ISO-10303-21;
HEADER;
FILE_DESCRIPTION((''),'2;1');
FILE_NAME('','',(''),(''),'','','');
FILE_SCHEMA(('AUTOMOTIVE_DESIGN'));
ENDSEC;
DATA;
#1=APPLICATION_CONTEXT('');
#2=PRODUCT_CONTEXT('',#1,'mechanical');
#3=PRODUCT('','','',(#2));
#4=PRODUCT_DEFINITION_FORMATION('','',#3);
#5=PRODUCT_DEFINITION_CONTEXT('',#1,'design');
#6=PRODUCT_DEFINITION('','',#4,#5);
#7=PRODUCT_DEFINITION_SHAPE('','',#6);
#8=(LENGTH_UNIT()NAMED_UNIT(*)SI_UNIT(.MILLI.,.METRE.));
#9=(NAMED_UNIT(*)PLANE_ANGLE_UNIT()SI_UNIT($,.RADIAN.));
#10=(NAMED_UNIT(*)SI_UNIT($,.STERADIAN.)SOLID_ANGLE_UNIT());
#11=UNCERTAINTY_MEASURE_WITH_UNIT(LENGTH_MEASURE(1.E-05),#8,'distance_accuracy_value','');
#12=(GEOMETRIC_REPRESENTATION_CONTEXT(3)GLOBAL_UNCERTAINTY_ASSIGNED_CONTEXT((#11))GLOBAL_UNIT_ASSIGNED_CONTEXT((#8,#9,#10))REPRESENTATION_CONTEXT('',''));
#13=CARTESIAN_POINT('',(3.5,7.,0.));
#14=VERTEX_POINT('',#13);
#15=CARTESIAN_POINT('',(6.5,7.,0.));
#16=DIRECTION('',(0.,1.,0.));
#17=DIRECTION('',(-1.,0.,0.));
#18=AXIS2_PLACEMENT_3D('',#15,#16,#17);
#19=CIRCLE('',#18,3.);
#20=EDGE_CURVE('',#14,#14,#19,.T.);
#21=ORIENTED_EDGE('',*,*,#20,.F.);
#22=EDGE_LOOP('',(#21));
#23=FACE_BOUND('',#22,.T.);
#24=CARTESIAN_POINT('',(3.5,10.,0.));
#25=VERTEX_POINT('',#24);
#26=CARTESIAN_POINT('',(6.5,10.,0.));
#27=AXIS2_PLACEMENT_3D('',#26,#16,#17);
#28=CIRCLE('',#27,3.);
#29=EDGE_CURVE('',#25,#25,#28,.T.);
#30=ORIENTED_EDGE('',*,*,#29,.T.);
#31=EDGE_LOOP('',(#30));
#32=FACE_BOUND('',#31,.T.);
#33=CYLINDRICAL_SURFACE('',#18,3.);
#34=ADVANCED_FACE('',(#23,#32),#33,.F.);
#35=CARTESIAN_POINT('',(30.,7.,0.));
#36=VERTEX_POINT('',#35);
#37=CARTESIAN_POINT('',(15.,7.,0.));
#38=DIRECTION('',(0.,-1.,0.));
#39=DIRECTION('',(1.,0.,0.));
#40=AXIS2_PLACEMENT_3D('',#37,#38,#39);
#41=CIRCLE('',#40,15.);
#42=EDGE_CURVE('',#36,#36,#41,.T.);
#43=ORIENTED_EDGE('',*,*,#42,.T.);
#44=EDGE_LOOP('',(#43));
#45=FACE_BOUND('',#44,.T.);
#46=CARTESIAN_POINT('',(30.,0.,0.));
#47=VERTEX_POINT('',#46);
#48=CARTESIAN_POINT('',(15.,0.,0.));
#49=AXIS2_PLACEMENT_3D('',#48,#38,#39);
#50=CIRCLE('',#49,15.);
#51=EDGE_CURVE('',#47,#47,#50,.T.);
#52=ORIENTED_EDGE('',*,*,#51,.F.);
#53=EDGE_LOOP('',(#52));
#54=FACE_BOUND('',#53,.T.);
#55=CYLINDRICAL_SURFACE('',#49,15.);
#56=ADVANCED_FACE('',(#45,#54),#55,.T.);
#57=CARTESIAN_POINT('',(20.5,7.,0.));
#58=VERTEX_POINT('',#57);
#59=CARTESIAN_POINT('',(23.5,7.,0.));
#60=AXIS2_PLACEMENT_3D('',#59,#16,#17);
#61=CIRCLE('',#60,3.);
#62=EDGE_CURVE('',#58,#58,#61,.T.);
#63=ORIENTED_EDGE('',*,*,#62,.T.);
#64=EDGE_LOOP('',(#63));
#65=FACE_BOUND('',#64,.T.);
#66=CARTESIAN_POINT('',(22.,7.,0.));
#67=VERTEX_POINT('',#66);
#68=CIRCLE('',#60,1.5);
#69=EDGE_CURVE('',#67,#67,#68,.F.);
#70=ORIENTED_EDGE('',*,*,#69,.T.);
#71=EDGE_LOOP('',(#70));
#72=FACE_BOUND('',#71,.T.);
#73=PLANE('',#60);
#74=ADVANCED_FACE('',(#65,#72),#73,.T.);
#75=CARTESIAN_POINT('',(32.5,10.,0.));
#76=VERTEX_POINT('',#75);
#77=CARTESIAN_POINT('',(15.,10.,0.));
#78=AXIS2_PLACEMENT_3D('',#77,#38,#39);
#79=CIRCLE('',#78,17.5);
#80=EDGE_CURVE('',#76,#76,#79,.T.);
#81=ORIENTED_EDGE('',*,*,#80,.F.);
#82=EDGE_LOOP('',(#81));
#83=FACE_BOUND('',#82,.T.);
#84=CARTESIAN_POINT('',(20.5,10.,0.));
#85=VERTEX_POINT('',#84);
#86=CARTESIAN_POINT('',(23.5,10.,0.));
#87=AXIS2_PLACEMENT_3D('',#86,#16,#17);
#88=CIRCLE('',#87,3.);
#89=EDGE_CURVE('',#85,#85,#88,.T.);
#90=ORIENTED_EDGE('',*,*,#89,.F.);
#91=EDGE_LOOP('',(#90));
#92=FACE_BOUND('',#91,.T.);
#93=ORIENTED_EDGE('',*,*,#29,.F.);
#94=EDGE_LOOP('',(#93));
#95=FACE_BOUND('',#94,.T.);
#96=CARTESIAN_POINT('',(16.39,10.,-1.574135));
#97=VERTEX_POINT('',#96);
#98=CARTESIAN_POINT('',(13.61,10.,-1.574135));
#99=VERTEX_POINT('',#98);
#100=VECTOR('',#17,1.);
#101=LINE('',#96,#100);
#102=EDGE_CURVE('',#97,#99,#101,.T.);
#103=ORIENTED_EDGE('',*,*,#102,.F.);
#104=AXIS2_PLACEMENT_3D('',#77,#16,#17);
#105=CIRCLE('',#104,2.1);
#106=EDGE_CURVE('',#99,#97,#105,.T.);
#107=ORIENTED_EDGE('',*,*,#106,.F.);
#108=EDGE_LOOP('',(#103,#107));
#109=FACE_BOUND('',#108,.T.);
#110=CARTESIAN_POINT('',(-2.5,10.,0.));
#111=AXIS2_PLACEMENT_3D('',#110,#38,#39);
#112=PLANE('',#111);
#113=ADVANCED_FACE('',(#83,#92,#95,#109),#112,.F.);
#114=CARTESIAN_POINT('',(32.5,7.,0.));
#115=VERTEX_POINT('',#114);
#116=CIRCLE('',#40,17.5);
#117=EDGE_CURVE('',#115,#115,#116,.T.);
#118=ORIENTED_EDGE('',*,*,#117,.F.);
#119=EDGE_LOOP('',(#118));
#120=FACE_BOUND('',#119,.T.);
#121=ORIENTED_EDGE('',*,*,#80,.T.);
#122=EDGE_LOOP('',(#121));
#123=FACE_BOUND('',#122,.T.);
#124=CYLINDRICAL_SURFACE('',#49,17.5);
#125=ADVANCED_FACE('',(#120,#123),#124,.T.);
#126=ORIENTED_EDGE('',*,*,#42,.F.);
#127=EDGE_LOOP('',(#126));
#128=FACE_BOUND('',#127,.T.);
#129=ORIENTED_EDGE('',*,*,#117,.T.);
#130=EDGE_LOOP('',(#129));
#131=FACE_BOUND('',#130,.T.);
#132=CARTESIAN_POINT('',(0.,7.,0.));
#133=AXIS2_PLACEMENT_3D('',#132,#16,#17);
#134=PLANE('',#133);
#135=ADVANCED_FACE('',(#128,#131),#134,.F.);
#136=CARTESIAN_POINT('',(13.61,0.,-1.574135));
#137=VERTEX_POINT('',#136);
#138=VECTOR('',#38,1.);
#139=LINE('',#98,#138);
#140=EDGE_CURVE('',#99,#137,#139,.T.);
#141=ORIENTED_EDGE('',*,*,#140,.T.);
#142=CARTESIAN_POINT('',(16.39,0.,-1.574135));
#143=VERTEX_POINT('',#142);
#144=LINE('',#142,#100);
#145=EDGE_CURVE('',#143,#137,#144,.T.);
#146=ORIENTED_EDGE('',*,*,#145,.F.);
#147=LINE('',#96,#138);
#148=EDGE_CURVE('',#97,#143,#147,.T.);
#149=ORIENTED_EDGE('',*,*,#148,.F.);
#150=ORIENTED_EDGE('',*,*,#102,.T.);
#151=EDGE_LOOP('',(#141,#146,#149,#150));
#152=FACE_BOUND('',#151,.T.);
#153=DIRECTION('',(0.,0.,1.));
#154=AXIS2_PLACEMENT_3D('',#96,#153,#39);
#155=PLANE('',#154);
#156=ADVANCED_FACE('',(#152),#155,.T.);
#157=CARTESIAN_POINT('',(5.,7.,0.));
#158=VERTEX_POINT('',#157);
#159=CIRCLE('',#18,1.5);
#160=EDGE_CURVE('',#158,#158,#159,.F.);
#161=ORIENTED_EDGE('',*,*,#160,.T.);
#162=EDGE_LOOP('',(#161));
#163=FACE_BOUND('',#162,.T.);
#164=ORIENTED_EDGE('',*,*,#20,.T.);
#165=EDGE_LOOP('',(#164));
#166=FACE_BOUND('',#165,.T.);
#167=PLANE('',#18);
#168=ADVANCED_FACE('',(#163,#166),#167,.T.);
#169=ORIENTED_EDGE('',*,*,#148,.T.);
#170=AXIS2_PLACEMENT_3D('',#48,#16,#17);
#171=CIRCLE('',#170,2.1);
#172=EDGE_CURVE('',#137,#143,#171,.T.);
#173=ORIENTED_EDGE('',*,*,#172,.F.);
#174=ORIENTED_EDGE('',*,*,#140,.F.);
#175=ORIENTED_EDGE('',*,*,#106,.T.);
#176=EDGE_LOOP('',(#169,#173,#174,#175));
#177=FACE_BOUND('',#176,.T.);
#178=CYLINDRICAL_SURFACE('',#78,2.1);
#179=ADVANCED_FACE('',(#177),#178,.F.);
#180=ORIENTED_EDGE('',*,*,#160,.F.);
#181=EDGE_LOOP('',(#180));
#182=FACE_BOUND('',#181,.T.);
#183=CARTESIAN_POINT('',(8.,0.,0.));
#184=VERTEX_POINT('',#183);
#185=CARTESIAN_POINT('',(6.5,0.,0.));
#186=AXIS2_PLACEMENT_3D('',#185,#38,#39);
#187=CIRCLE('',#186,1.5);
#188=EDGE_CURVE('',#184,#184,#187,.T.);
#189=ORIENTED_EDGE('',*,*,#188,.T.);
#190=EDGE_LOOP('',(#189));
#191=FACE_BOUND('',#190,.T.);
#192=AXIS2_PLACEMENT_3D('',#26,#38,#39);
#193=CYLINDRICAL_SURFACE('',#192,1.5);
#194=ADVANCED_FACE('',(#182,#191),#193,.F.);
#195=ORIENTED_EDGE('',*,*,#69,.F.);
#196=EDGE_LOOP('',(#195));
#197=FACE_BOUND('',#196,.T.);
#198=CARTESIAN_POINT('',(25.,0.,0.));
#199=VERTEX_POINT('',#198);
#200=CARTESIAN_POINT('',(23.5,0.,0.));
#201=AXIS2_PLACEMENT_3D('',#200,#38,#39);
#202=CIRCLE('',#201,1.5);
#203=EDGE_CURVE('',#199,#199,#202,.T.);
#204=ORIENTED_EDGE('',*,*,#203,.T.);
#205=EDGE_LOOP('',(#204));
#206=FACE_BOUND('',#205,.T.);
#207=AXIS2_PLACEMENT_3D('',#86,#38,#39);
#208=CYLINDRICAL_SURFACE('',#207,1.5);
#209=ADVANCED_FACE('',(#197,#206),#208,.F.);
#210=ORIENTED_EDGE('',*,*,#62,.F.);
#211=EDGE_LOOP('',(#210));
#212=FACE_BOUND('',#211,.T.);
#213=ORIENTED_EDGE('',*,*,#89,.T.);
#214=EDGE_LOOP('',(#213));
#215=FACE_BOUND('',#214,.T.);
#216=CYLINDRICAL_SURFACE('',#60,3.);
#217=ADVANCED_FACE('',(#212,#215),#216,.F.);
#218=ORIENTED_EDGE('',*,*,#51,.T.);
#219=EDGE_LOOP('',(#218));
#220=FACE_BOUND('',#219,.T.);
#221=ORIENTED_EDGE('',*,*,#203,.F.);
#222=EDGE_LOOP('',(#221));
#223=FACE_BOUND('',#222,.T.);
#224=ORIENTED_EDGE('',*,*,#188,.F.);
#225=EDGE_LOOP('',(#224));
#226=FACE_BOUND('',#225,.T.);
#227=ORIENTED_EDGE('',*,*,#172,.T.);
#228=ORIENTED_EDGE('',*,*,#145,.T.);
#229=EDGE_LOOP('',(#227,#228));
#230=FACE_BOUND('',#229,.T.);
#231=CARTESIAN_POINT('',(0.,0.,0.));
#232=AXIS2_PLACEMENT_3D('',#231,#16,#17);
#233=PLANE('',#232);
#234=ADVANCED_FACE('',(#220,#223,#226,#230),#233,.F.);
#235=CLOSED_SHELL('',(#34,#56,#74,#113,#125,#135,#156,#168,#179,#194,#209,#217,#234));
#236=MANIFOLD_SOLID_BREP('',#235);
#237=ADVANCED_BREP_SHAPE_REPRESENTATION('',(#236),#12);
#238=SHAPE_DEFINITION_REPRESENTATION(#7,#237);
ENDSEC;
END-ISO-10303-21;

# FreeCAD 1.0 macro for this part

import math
import FreeCAD as App
import Part
import Sketcher

V = App.Vector


def add_polygon(sketch, points):
    """Adds a closed chain of lines whose ends are joined by coincident constraints."""
    first, n = sketch.GeometryCount, len(points)
    for a, b in zip(points, points[1:] + points[:1]):
        sketch.addGeometry(Part.LineSegment(App.Vector(*a, 0), App.Vector(*b, 0)), False)
    for i in range(n):
        sketch.addConstraint(Sketcher.Constraint("Coincident", first + i, 2, first + (i + 1) % n, 1))

doc = App.newDocument("Part")
body = doc.addObject("PartDesign::Body", "Body")

sketch1 = body.newObject("Sketcher::SketchObject", "Sketch")
sketch1.AttachmentSupport = (doc.getObject("XY_Plane"), [""])
sketch1.MapMode = "FlatFace"
add_polygon(sketch1, [(-2.5, 7), (0, 7), (0, 0), (15, 0), (15, 10), (-2.5, 10)])
sketch1.addGeometry(Part.LineSegment(V(15, 0, 0), V(15, 10, 0)), True)
sketch1.addConstraint([
    Sketcher.Constraint("Horizontal", 0),
    Sketcher.Constraint("Vertical", 1),
    Sketcher.Constraint("Horizontal", 2),
    Sketcher.Constraint("Vertical", 3),
    Sketcher.Constraint("Horizontal", 4),
    Sketcher.Constraint("Vertical", 5),
    Sketcher.Constraint("Vertical", 6),
    Sketcher.Constraint("Coincident", 1, 2, -1, 1),
    Sketcher.Constraint("Coincident", 6, 1, 2, 2),
    Sketcher.Constraint("Horizontal", 4, 2, 6, 2),
    Sketcher.Constraint("DistanceX", 2, 1, 2, 2, 15.0),
    Sketcher.Constraint("DistanceY", 1, 2, 1, 1, 7.0),
    Sketcher.Constraint("DistanceY", 3, 1, 3, 2, 10.0),
    Sketcher.Constraint("DistanceX", 0, 1, 0, 2, 2.5),
])
revolution = body.newObject("PartDesign::Revolution", "Revolution")
revolution.Profile = sketch1
revolution.ReferenceAxis = (sketch1, ["Axis0"])
revolution.Angle = 360

sketch2 = body.newObject("Sketcher::SketchObject", "Sketch001")
sketch2.AttachmentSupport = (doc.getObject("XZ_Plane"), [""])
sketch2.MapMode = "FlatFace"
sketch2.addGeometry([
    Part.Circle(V(23.5, 0, 0), V(0, 0, 1), 1.5),
    Part.Circle(V(6.5, 0, 0), V(0, 0, 1), 1.5),
    Part.LineSegment(V(13.6, -1.6, 0), V(16.4, -1.6, 0)),
    Part.ArcOfCircle(Part.Circle(V(15, 0, 0), V(0, 0, 1), 2.1), math.radians(-49), math.radians(229)),
], False)
sketch2.addConstraint([
    Sketcher.Constraint("Coincident", 2, 1, 3, 2),
    Sketcher.Constraint("Coincident", 3, 1, 2, 2),
    Sketcher.Constraint("Horizontal", 2),
    Sketcher.Constraint("Equal", 0, 1),
    Sketcher.Constraint("PointOnObject", 0, 3, -1),
    Sketcher.Constraint("PointOnObject", 1, 3, -1),
    Sketcher.Constraint("PointOnObject", 3, 3, -1),
    Sketcher.Constraint("Diameter", 0, 3.0),
    Sketcher.Constraint("Radius", 3, 2.1),
    Sketcher.Constraint("DistanceX", -1, 1, 3, 3, 15.0),
    Sketcher.Constraint("DistanceX", 1, 3, 0, 3, 17.0),
    Sketcher.Constraint("DistanceX", 2, 1, 2, 2, 2.78),
    Sketcher.Constraint("DistanceX", -1, 1, 0, 3, 23.5),
])
pocket1 = body.newObject("PartDesign::Pocket", "Pocket")
pocket1.Profile = sketch2
pocket1.Length = 10

sketch3 = body.newObject("Sketcher::SketchObject", "Sketch002")
sketch3.AttachmentSupport = (doc.getObject("XZ_Plane"), [""])
sketch3.MapMode = "FlatFace"
sketch3.AttachmentOffset = App.Placement(V(0, 0, -10), App.Rotation())
sketch3.addGeometry([
    Part.Circle(V(6.5, 0, 0), V(0, 0, 1), 3),
    Part.Circle(V(23.5, 0, 0), V(0, 0, 1), 3),
], False)
sketch3.addConstraint([
    Sketcher.Constraint("Equal", 0, 1),
    Sketcher.Constraint("PointOnObject", 0, 3, -1),
    Sketcher.Constraint("PointOnObject", 1, 3, -1),
    Sketcher.Constraint("Diameter", 0, 6.0),
    Sketcher.Constraint("DistanceX", 0, 3, 1, 3, 17.0),
    Sketcher.Constraint("DistanceX", -1, 1, 0, 3, 6.5),
])
pocket2 = body.newObject("PartDesign::Pocket", "Pocket001")
pocket2.Profile = sketch3
pocket2.Length = 3
pocket2.Reversed = True

doc.recompute()
